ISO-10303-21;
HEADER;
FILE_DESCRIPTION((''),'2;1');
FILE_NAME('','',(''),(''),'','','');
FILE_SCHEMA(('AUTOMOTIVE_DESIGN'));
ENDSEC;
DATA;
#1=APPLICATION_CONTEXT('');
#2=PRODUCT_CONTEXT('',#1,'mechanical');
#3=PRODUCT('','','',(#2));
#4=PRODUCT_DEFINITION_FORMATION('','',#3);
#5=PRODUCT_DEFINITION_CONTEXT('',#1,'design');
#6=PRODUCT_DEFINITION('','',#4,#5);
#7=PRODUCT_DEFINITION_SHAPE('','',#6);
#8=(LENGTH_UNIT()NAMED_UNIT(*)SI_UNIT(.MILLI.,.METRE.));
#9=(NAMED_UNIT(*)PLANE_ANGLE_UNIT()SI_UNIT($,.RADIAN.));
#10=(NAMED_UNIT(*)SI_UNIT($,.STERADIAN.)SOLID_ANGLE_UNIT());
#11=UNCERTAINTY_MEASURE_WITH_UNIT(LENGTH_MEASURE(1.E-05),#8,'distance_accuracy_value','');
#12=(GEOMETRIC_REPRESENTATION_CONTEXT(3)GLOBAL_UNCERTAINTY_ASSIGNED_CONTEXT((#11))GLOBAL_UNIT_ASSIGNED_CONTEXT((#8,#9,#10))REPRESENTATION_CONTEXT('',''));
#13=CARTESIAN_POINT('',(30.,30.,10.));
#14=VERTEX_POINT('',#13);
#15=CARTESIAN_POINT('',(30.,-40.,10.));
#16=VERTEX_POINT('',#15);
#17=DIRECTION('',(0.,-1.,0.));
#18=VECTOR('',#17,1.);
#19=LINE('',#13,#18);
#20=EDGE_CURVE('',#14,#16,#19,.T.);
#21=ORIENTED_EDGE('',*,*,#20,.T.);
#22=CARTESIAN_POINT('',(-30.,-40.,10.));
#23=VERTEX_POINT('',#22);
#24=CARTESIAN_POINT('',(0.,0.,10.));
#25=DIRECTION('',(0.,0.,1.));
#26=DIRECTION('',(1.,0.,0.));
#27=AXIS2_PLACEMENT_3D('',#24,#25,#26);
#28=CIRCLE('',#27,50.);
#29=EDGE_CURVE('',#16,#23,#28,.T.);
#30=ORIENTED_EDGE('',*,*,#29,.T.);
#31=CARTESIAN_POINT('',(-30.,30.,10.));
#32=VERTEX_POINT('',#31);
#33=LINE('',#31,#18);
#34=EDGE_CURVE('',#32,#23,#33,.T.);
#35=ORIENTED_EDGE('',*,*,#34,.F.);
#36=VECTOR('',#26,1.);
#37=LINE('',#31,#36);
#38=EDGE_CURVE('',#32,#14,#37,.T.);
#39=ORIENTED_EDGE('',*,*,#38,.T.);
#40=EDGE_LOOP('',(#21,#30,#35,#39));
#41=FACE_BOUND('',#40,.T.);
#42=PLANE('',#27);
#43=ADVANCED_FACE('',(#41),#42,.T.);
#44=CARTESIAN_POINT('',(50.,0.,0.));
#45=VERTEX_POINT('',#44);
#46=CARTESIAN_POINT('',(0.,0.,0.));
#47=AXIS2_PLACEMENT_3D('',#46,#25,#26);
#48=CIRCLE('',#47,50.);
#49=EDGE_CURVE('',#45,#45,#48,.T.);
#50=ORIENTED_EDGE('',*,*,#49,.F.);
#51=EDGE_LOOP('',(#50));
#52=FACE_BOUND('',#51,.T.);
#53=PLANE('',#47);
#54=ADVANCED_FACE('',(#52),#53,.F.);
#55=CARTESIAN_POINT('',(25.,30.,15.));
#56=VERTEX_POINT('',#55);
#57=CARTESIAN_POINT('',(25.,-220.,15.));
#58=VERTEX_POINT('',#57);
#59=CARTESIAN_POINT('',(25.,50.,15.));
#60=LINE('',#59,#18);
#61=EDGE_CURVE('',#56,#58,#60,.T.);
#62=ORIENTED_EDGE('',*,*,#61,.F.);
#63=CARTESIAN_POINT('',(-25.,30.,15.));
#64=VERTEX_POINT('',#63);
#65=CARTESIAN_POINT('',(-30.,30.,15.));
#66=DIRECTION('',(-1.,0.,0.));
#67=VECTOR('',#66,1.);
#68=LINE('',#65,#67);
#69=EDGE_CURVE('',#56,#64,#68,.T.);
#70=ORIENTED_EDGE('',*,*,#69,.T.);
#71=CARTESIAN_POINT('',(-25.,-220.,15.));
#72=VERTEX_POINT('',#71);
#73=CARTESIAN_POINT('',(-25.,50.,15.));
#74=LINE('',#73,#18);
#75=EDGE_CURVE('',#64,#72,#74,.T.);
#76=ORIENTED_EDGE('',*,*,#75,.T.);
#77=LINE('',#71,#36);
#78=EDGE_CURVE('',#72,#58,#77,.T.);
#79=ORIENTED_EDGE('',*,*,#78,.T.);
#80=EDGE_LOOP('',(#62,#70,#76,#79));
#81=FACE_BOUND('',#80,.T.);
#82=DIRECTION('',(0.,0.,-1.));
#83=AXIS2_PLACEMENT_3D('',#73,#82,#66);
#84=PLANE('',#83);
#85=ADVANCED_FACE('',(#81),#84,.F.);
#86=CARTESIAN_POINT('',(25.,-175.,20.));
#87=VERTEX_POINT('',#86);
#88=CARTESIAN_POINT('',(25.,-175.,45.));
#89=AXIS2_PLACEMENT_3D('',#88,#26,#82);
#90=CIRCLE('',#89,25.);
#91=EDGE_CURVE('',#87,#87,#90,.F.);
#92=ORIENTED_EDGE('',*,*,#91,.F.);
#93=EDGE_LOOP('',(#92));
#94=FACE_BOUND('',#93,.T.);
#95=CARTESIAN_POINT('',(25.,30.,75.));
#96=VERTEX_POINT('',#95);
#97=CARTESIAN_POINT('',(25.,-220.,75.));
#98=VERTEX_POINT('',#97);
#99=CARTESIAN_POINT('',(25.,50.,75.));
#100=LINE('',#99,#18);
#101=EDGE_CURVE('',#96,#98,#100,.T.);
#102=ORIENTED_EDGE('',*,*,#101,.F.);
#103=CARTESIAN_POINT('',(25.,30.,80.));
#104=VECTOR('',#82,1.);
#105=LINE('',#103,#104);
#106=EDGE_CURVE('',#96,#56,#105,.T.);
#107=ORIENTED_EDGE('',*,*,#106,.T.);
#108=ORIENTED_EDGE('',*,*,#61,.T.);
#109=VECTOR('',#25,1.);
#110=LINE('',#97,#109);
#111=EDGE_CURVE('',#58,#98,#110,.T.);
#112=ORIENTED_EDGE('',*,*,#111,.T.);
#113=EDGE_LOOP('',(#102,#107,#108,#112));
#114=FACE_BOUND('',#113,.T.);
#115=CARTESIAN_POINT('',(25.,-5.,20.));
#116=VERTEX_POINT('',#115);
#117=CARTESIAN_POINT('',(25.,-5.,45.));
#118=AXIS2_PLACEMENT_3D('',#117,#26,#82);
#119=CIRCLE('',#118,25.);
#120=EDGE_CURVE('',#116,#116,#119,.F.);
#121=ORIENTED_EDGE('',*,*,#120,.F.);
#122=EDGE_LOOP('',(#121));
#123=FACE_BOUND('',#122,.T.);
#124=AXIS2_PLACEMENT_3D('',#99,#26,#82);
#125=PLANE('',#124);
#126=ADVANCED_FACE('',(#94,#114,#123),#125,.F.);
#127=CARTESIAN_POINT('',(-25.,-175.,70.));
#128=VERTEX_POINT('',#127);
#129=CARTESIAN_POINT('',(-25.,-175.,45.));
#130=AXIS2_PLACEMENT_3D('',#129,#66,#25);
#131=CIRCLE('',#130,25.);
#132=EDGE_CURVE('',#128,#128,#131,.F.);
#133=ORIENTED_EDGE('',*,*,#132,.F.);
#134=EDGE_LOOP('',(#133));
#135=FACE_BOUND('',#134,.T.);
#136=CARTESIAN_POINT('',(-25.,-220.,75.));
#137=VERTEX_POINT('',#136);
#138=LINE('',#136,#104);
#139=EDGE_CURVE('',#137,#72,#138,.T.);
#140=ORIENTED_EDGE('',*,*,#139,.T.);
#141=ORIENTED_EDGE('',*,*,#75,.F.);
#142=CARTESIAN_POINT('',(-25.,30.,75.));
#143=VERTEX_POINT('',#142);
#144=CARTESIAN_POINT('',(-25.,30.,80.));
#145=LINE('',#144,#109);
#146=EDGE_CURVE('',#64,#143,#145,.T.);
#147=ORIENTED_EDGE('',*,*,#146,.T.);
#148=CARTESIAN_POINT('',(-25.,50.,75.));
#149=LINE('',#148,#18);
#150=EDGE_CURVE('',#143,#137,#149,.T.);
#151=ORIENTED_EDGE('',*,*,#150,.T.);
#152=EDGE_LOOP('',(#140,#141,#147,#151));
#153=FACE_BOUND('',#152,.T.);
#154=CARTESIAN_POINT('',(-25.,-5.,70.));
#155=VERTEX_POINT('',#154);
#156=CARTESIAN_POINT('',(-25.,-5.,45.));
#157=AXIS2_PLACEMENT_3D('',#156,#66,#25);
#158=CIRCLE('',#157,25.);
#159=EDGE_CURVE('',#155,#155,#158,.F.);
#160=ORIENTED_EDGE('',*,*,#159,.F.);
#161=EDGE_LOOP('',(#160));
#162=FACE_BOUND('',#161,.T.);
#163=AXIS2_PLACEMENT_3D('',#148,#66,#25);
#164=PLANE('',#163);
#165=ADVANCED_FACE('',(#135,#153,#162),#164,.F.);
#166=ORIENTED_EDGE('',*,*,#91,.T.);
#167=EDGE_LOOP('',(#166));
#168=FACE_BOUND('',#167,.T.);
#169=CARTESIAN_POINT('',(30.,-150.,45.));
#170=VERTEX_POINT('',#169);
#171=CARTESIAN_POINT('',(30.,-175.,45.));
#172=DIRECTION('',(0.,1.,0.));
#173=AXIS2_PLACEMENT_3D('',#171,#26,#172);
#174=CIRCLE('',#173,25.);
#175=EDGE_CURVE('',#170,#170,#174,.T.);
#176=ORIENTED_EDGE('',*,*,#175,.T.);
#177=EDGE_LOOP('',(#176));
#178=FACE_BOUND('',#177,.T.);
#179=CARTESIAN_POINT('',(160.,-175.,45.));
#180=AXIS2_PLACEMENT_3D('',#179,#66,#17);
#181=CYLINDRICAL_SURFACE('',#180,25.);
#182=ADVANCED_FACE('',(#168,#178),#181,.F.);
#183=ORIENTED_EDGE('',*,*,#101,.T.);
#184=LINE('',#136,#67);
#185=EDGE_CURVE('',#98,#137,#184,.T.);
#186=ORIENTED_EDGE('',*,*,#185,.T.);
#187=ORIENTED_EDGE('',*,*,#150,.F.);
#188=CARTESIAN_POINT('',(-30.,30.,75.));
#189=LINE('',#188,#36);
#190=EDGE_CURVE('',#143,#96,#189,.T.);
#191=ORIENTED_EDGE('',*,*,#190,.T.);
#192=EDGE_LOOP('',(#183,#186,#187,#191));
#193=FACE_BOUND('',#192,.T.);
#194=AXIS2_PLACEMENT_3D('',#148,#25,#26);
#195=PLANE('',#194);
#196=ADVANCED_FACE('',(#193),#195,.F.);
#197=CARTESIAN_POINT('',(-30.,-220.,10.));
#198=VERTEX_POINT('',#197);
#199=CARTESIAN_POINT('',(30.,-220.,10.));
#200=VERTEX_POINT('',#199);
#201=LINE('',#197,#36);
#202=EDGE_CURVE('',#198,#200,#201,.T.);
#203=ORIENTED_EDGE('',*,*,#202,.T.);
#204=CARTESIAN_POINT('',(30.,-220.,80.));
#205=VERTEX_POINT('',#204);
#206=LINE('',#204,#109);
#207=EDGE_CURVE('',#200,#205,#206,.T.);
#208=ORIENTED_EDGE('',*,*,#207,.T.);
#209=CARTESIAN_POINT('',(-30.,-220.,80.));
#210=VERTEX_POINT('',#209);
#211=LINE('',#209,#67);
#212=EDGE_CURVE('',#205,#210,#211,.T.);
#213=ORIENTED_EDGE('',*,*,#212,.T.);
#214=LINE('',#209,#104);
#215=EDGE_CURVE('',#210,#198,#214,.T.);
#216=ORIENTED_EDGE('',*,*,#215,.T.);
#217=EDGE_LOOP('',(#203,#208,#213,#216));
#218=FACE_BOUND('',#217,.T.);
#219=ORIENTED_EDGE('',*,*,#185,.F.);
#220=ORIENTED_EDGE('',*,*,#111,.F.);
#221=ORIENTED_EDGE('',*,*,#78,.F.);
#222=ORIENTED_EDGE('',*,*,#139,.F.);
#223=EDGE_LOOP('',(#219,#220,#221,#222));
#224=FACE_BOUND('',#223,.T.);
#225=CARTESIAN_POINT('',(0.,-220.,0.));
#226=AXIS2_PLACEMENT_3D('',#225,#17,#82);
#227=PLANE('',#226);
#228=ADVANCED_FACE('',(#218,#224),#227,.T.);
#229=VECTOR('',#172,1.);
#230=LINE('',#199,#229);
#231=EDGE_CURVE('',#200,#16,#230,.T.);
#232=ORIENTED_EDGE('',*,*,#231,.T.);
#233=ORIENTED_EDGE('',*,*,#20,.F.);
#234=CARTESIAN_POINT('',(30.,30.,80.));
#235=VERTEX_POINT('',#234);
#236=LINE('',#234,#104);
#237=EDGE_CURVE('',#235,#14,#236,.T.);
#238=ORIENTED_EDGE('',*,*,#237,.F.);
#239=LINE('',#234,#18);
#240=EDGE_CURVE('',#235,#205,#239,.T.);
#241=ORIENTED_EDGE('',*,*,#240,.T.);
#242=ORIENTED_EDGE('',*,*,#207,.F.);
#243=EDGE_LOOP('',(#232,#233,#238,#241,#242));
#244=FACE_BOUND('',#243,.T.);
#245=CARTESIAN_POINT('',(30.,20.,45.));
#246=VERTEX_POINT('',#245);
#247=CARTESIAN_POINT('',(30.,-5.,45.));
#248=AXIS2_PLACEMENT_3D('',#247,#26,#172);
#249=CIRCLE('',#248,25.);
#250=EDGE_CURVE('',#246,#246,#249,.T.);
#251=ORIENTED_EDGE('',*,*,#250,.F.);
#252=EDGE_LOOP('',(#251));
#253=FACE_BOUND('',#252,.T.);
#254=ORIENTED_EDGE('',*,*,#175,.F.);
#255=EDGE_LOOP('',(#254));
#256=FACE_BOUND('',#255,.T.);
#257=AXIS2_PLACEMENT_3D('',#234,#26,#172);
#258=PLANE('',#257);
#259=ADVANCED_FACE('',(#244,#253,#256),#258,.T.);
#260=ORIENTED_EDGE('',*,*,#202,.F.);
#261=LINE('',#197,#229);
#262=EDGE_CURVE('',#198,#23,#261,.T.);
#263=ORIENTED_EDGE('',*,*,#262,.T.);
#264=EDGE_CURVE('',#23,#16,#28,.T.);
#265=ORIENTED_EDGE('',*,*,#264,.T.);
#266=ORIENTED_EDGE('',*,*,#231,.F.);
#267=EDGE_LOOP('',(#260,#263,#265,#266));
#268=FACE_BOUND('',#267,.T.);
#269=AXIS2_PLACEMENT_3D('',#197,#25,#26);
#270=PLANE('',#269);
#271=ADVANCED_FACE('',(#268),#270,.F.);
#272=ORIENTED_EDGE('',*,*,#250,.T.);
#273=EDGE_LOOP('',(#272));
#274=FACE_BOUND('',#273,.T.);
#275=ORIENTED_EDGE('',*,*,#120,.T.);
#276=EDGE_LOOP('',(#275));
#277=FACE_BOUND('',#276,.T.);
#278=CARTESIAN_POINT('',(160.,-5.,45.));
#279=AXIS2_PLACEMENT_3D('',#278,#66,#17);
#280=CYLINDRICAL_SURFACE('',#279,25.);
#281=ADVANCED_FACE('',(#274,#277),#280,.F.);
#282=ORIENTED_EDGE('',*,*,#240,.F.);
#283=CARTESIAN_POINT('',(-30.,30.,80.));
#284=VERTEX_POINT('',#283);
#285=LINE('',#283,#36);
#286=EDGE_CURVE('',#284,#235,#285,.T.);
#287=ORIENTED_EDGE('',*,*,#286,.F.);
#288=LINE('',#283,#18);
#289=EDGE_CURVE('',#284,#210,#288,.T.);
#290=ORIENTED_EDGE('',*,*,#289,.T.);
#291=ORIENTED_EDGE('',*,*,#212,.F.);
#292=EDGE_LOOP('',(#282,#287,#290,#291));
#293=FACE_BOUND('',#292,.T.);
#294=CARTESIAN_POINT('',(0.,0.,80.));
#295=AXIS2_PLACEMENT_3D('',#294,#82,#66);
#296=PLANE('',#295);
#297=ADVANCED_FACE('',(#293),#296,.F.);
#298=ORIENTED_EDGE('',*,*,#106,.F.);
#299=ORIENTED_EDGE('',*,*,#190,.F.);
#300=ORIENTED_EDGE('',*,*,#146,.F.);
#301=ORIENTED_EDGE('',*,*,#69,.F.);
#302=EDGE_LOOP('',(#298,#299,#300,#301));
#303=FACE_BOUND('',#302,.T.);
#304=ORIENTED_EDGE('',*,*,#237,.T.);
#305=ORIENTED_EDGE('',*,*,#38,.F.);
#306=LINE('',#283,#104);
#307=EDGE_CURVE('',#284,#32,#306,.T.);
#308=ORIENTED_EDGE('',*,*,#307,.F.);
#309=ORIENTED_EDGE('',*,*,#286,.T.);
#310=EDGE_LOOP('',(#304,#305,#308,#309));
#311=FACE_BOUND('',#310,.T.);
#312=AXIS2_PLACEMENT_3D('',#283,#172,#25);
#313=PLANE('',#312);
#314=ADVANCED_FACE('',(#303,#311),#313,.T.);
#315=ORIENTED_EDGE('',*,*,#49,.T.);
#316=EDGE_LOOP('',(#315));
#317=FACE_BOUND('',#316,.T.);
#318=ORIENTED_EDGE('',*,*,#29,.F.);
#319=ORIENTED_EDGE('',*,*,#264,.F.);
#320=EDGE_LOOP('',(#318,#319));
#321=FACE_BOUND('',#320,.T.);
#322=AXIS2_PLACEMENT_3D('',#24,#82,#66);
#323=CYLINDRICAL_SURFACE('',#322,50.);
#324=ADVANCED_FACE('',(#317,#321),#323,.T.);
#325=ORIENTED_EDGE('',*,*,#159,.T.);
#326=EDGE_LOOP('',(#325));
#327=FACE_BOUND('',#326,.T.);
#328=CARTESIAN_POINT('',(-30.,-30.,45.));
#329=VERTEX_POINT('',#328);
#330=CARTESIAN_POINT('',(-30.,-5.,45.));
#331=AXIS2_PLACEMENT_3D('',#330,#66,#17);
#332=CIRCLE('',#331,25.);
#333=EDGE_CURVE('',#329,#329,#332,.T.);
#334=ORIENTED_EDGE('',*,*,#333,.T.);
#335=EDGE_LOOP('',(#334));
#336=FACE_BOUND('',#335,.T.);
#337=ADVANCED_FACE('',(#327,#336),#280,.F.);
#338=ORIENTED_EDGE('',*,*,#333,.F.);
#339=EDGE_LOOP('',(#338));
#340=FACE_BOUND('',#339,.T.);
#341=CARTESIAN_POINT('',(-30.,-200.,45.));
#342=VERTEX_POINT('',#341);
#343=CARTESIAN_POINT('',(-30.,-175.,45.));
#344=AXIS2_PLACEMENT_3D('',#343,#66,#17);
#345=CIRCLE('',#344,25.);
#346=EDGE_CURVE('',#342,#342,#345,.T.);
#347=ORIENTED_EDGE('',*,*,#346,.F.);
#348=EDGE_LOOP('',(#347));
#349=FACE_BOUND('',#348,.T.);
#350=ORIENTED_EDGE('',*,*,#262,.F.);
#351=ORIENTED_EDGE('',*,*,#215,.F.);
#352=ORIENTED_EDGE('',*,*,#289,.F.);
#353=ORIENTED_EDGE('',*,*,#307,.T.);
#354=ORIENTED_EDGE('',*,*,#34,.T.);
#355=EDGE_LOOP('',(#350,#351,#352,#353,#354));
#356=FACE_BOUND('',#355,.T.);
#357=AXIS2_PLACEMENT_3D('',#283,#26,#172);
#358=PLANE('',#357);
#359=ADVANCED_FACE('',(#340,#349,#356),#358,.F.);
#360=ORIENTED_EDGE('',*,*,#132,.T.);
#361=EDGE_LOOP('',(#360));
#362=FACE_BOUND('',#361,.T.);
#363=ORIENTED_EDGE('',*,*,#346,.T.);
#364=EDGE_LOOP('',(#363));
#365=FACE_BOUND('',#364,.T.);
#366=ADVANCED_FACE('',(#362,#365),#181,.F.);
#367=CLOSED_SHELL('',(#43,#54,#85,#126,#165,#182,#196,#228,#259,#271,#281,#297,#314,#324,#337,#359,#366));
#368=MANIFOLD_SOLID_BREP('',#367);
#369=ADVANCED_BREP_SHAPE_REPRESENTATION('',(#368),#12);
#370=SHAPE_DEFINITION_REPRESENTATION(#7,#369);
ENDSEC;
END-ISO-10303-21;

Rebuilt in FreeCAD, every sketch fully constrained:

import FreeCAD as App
import Part
import Sketcher
Q = App.Units.Quantity


def add_polygon(sketch, points):
    """Adds a closed chain of lines whose ends are joined by coincident constraints."""
    first, n = sketch.GeometryCount, len(points)
    for a, b in zip(points, points[1:] + points[:1]):
        sketch.addGeometry(Part.LineSegment(App.Vector(*a, 0), App.Vector(*b, 0)), False)
    for i in range(n):
        sketch.addConstraint(Sketcher.Constraint("Coincident", first + i, 2, first + (i + 1) % n, 1))

doc = App.newDocument("Part")
params = doc.addObject("Spreadsheet::Sheet", "Params")
for row, (alias, value) in enumerate([
    ("sketch1_diameter", "100 mm"),
    ("pad1_length", "10 mm"),
    ("sketch2_width", "60 mm"),
    ("pad2_length", "70 mm"),
    ("sketch3_width", "60 mm"),
    ("sketch3_height", "70 mm"),
    ("pad3_length", "190 mm"),
    ("sketch4_diameter", "50 mm"),
    ("pocket1_length", "190 mm"),
    ("sketch5_width", "50 mm"),
    ("sketch5_height", "60 mm"),
], start=1):
    params.set(f"A{row}", alias)
    params.set(f"B{row}", "=" + value)
    params.setAlias(f"B{row}", alias)

body = doc.addObject("PartDesign::Body", "Body")

# Sketch on XY plane
sketch1 = body.newObject("Sketcher::SketchObject", "Sketch")
sketch1.AttachmentSupport = (doc.getObject("XY_Plane"), [""])
sketch1.MapMode = "FlatFace"
sketch1.addGeometry(Part.Circle(App.Vector(0, 0, 0), App.Vector(0, 0, 1), 50), False)
sketch1.addConstraint(Sketcher.Constraint("Coincident", 0, 3, -1, 1))
sketch1.addConstraint(Sketcher.Constraint("Diameter", 0, Q("100 mm")))
sketch1.setExpression("Constraints[1]", "Params.sketch1_diameter")
pad1 = body.newObject("PartDesign::Pad", "Pad")
pad1.Profile = sketch1
pad1.setExpression("Length", "Params.pad1_length")

# Sketch on XY plane
sketch2 = body.newObject("Sketcher::SketchObject", "Sketch001")
sketch2.AttachmentSupport = (doc.getObject("XY_Plane"), [""])
sketch2.MapMode = "FlatFace"
sketch2.AttachmentOffset = App.Placement(App.Vector(0, 0, 10), App.Rotation())
add_polygon(sketch2, [(-30, 30), (-30, -30), (30, -30), (30, 30)])  # lines 0-3
sketch2.addConstraint(Sketcher.Constraint("Vertical", 0))
sketch2.addConstraint(Sketcher.Constraint("Horizontal", 1))
sketch2.addConstraint(Sketcher.Constraint("Vertical", 2))
sketch2.addConstraint(Sketcher.Constraint("Horizontal", 3))
sketch2.addConstraint(Sketcher.Constraint("Symmetric", 0, 2, 2, 2, -1, 1))
sketch2.addConstraint(Sketcher.Constraint("Equal", 3, 0))
sketch2.addConstraint(Sketcher.Constraint("DistanceX", 1, 1, 1, 2, Q("60 mm")))
sketch2.setExpression("Constraints[10]", "Params.sketch2_width")
pad2 = body.newObject("PartDesign::Pad", "Pad001")
pad2.Profile = sketch2
pad2.setExpression("Length", "Params.pad2_length")

# Sketch on XZ plane
sketch3 = body.newObject("Sketcher::SketchObject", "Sketch002")
sketch3.AttachmentSupport = (doc.getObject("XZ_Plane"), [""])
sketch3.MapMode = "FlatFace"
sketch3.AttachmentOffset = App.Placement(App.Vector(0, 0, 30), App.Rotation())
add_polygon(sketch3, [(-30, 80), (-30, 10), (30, 10), (30, 80)])  # lines 0-3
sketch3.addConstraint(Sketcher.Constraint("Vertical", 0))
sketch3.addConstraint(Sketcher.Constraint("Horizontal", 1))
sketch3.addConstraint(Sketcher.Constraint("Vertical", 2))
sketch3.addConstraint(Sketcher.Constraint("Horizontal", 3))
sketch3.addConstraint(Sketcher.Constraint("DistanceX", 1, 1, 1, 2, Q("60 mm")))
sketch3.addConstraint(Sketcher.Constraint("DistanceY", 0, 2, 0, 1, Q("70 mm")))
sketch3.addConstraint(Sketcher.Constraint("DistanceX", 0, 2, -1, 1, Q("30 mm")))
sketch3.addConstraint(Sketcher.Constraint("DistanceY", -1, 1, 0, 2, Q("10 mm")))
sketch3.setExpression("Constraints[8]", "Params.sketch3_width")
sketch3.setExpression("Constraints[9]", "Params.sketch3_height")
pad3 = body.newObject("PartDesign::Pad", "Pad002")
pad3.Profile = sketch3
pad3.setExpression("Length", "Params.pad3_length")

# Sketch on YZ plane
sketch4 = body.newObject("Sketcher::SketchObject", "Sketch003")
sketch4.AttachmentSupport = (doc.getObject("YZ_Plane"), [""])
sketch4.MapMode = "FlatFace"
sketch4.AttachmentOffset = App.Placement(App.Vector(0, 0, -30), App.Rotation())
sketch4.addGeometry(Part.Circle(App.Vector(-5, 45, 0), App.Vector(0, 0, 1), 25), False)
sketch4.addGeometry(Part.Circle(App.Vector(-175, 45, 0), App.Vector(0, 0, 1), 25), False)
sketch4.addConstraint(Sketcher.Constraint("Equal", 0, 1))
sketch4.addConstraint(Sketcher.Constraint("Horizontal", 0, 3, 1, 3))
sketch4.addConstraint(Sketcher.Constraint("Diameter", 0, Q("50 mm")))
sketch4.addConstraint(Sketcher.Constraint("DistanceX", 0, 3, -1, 1, Q("5 mm")))
sketch4.addConstraint(Sketcher.Constraint("DistanceY", -1, 1, 0, 3, Q("45 mm")))
sketch4.addConstraint(Sketcher.Constraint("DistanceX", 1, 3, -1, 1, Q("175 mm")))
sketch4.setExpression("Constraints[2]", "Params.sketch4_diameter")
pocket1 = body.newObject("PartDesign::Pocket", "Pocket")
pocket1.Profile = sketch4
pocket1.setExpression("Length", "Params.pocket1_length")
pocket1.Reversed = True

# Sketch on XZ plane
sketch5 = body.newObject("Sketcher::SketchObject", "Sketch004")
sketch5.AttachmentSupport = (doc.getObject("XZ_Plane"), [""])
sketch5.MapMode = "FlatFace"
sketch5.AttachmentOffset = App.Placement(App.Vector(0, 0, 220), App.Rotation())
add_polygon(sketch5, [(-25, 75), (-25, 15), (25, 15), (25, 75)])  # lines 0-3
sketch5.addConstraint(Sketcher.Constraint("Vertical", 0))
sketch5.addConstraint(Sketcher.Constraint("Horizontal", 1))
sketch5.addConstraint(Sketcher.Constraint("Vertical", 2))
sketch5.addConstraint(Sketcher.Constraint("Horizontal", 3))
sketch5.addConstraint(Sketcher.Constraint("DistanceX", 1, 1, 1, 2, Q("50 mm")))
sketch5.addConstraint(Sketcher.Constraint("DistanceY", 0, 2, 0, 1, Q("60 mm")))
sketch5.addConstraint(Sketcher.Constraint("DistanceX", 0, 2, -1, 1, Q("25 mm")))
sketch5.addConstraint(Sketcher.Constraint("DistanceY", -1, 1, 0, 2, Q("15 mm")))
sketch5.setExpression("Constraints[8]", "Params.sketch5_width")
sketch5.setExpression("Constraints[9]", "Params.sketch5_height")
pocket2 = body.newObject("PartDesign::Pocket", "Pocket001")
pocket2.Profile = sketch5
pocket2.Type = "ThroughAll"

doc.recompute()
